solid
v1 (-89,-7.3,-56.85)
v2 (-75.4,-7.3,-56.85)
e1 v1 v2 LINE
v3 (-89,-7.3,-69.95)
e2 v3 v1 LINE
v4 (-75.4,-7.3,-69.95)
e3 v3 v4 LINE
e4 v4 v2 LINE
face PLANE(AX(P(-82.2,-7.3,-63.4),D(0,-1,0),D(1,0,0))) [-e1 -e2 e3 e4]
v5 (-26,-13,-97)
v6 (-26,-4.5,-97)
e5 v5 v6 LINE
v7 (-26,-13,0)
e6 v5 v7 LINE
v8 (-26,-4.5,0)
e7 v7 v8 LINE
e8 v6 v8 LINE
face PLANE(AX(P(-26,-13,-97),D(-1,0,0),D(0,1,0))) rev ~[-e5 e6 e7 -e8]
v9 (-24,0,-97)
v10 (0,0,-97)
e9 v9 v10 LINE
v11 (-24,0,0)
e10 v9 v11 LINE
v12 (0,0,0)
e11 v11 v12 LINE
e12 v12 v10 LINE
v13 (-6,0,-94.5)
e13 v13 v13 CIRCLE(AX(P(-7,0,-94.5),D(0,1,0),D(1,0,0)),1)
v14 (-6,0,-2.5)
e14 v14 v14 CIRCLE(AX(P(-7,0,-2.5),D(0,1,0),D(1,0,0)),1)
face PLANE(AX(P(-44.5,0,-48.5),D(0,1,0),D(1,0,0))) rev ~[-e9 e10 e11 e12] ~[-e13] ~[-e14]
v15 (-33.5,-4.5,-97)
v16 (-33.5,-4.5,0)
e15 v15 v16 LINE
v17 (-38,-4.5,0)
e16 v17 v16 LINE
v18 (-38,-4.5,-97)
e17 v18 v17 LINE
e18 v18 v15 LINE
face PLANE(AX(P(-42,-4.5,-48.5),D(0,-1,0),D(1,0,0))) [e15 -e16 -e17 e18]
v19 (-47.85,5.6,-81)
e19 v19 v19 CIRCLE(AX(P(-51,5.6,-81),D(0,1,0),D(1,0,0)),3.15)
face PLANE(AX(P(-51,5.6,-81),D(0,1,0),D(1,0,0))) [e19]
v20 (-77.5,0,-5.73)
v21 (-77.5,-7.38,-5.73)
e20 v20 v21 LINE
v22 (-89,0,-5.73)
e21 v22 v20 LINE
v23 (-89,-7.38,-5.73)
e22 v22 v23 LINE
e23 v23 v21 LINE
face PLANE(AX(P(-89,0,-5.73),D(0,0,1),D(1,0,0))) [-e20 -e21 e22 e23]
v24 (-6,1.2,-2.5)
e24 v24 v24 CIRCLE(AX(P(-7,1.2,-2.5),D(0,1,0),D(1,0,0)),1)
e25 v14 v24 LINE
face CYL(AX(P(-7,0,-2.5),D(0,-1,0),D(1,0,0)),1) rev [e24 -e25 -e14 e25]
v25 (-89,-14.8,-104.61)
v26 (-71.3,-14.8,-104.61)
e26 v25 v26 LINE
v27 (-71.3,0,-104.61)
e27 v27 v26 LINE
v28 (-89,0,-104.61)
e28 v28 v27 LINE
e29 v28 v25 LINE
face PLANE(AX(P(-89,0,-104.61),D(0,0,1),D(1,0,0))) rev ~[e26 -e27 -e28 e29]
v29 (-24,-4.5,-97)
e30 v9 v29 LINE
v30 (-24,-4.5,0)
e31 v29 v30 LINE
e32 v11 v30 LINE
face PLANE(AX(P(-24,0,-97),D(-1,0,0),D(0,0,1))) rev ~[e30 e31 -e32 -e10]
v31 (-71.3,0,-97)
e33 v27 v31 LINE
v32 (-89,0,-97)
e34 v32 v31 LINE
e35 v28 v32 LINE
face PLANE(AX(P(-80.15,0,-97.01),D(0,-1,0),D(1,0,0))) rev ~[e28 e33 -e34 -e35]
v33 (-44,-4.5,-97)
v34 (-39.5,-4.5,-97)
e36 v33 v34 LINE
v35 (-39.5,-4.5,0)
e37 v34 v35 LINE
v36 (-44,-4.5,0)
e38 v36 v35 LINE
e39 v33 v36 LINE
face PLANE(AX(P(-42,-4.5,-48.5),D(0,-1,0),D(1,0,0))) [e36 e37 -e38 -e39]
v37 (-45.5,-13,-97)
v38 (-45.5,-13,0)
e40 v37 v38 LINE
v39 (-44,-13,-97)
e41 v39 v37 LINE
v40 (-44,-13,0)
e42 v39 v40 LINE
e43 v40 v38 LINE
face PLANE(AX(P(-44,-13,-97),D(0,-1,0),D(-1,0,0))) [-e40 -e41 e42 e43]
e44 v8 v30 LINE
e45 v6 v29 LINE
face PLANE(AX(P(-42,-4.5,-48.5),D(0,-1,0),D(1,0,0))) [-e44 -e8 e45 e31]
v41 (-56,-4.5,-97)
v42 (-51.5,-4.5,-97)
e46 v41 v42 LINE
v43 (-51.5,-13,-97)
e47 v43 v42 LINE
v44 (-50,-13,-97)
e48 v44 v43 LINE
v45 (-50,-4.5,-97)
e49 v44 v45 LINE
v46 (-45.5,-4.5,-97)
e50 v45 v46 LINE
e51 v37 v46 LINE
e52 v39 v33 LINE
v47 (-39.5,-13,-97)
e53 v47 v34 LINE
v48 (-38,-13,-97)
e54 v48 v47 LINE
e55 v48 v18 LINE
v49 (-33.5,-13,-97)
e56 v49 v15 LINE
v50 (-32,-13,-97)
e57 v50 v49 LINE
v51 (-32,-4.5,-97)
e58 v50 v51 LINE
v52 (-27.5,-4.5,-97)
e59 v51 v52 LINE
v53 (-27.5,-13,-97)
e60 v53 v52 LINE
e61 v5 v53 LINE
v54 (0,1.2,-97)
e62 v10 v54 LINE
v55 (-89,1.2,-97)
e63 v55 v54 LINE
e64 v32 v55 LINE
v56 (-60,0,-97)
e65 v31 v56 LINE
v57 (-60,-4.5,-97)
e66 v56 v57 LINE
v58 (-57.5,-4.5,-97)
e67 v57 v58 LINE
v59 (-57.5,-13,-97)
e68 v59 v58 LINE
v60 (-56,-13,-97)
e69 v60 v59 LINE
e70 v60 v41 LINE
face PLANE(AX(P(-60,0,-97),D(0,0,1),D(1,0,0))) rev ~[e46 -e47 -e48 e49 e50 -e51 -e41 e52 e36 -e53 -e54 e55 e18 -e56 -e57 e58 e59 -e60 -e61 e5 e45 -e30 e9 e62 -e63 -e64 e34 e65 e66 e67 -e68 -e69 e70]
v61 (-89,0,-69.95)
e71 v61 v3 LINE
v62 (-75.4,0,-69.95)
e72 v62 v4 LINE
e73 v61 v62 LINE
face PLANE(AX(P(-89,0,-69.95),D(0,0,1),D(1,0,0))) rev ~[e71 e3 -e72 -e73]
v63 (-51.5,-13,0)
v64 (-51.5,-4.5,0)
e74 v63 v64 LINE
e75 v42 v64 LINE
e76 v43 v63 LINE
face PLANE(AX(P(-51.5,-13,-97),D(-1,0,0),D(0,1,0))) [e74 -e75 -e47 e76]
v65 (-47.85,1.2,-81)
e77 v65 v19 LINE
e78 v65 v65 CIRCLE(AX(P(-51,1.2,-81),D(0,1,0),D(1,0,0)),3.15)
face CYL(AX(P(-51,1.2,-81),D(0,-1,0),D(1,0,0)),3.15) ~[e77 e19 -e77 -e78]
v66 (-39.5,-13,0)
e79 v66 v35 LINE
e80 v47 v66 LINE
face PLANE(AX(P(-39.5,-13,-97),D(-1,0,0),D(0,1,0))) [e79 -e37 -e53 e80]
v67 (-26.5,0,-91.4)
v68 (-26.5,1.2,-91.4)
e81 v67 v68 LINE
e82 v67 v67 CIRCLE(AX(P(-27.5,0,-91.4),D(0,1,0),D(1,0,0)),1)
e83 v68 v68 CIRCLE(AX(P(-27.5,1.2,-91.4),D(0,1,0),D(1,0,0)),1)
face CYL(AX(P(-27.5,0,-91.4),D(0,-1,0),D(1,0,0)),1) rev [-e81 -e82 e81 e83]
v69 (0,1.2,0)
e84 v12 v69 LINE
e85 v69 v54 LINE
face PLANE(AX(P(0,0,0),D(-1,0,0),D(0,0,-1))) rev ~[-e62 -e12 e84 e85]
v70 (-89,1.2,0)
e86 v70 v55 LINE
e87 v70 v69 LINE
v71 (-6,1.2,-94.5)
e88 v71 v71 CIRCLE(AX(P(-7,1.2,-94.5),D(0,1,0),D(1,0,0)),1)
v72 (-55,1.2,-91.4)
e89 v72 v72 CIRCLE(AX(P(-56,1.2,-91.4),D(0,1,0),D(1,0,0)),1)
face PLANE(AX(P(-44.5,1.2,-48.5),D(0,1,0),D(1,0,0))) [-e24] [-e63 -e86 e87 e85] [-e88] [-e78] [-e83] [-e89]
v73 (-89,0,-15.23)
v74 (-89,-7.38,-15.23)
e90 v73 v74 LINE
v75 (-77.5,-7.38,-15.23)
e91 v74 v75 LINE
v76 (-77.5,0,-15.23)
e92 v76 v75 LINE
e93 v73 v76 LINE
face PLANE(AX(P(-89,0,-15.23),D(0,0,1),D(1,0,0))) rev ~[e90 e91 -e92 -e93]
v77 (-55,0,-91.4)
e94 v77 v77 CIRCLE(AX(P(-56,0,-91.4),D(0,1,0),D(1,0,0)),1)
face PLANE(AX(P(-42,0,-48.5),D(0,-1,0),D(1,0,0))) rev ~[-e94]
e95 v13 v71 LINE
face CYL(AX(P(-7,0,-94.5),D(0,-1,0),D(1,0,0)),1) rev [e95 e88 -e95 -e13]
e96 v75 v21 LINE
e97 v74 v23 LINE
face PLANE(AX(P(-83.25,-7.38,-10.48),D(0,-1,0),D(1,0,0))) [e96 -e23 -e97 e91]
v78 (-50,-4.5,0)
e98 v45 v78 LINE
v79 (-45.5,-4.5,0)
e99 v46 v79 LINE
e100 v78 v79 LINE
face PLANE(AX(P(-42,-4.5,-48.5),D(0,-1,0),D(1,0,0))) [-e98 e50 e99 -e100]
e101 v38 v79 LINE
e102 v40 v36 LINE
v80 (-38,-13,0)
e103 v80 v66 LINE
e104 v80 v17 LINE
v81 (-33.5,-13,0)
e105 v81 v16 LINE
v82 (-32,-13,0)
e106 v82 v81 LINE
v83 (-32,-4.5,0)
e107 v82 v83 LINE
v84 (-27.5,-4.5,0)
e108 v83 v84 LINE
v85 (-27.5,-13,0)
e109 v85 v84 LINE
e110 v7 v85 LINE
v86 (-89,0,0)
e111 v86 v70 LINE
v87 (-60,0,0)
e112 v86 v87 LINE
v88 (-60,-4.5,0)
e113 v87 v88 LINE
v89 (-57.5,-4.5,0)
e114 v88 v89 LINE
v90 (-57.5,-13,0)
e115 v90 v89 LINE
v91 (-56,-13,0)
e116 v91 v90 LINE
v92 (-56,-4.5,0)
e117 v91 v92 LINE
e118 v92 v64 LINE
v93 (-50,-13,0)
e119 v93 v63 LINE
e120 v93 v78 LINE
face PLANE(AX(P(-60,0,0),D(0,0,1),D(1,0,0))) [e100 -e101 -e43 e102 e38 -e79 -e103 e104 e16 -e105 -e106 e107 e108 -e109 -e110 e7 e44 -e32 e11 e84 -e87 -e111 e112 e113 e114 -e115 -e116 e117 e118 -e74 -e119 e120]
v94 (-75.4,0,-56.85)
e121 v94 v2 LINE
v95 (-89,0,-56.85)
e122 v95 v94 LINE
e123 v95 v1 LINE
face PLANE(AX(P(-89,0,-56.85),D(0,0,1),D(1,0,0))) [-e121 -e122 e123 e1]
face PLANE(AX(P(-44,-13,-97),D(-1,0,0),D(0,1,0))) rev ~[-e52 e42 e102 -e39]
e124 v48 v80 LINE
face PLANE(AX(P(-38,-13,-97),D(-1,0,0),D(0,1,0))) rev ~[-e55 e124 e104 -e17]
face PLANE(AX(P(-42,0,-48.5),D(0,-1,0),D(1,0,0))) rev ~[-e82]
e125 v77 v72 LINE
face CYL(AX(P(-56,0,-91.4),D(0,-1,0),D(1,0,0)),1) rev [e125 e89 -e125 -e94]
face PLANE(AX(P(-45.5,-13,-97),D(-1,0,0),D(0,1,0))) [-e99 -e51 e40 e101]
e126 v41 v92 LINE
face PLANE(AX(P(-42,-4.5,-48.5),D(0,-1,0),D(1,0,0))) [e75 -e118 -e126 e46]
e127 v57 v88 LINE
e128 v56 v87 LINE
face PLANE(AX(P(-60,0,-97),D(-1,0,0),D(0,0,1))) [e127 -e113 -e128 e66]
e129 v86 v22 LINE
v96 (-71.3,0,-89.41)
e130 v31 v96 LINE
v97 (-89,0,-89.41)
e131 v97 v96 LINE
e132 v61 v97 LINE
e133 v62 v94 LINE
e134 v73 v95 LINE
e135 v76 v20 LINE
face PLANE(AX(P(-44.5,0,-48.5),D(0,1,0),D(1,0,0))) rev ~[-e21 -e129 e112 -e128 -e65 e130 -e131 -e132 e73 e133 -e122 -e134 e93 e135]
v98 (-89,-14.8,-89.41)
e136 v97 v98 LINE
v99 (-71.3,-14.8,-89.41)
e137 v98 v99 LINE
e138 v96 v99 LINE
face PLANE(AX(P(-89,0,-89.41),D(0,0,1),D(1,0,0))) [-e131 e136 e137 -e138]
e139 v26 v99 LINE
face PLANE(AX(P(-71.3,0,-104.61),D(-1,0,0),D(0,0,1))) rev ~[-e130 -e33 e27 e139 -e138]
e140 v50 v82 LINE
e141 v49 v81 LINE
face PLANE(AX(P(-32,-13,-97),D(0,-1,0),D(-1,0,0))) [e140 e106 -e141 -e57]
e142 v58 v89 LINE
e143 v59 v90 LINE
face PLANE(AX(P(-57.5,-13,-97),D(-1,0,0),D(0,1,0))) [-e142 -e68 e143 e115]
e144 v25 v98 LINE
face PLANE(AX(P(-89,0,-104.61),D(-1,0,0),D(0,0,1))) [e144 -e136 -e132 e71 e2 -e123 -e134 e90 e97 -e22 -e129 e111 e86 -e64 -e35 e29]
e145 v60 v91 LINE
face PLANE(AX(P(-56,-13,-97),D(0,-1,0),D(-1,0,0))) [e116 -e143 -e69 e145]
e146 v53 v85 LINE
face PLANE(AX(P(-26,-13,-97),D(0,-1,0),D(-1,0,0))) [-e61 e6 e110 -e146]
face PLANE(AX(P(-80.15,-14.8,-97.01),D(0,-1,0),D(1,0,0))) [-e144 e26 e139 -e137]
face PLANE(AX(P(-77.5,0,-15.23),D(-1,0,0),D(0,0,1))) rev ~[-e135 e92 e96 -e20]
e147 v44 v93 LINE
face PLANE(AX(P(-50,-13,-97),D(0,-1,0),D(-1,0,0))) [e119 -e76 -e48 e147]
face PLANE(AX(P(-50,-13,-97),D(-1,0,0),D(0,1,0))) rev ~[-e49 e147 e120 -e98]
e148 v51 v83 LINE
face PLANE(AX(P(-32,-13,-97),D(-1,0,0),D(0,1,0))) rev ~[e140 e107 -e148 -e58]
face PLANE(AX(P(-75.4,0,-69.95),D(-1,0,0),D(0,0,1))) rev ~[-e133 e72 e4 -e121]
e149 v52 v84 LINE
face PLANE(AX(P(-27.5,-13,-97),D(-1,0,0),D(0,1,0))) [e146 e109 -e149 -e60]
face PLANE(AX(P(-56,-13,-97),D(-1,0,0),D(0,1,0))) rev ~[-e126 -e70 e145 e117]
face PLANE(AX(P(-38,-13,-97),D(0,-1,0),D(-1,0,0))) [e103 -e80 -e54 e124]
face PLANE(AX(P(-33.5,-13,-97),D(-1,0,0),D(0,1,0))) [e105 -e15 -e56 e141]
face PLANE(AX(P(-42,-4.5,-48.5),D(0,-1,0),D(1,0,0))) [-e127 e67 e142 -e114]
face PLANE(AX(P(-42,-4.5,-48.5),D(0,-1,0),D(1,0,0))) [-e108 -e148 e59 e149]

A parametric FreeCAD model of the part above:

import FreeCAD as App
import Part
import Sketcher
Q = App.Units.Quantity


def add_polygon(sketch, points):
    """Adds a closed chain of lines whose ends are joined by coincident constraints."""
    first, n = sketch.GeometryCount, len(points)
    for a, b in zip(points, points[1:] + points[:1]):
        sketch.addGeometry(Part.LineSegment(App.Vector(*a, 0), App.Vector(*b, 0)), False)
    for i in range(n):
        sketch.addConstraint(Sketcher.Constraint("Coincident", first + i, 2, first + (i + 1) % n, 1))

doc = App.newDocument("Part")
body = doc.addObject("PartDesign::Body", "Body")

# Sketch on XZ plane
sketch1 = body.newObject("Sketcher::SketchObject", "Sketch")
sketch1.AttachmentSupport = (doc.getObject("XZ_Plane"), [""])
sketch1.MapMode = "FlatFace"
add_polygon(sketch1, [(-89, -97), (-89, 0), (0, 0), (0, -97)])  # lines 0-3
sketch1.addGeometry(Part.Circle(App.Vector(-7, -2.5, 0), App.Vector(0, 0, 1), 1), False)  # 4
sketch1.addGeometry(Part.Circle(App.Vector(-56, -91.4, 0), App.Vector(0, 0, 1), 1), False)  # 5
sketch1.addGeometry(Part.Circle(App.Vector(-27.5, -91.4, 0), App.Vector(0, 0, 1), 1), False)  # 6
sketch1.addGeometry(Part.Circle(App.Vector(-7, -94.5, 0), App.Vector(0, 0, 1), 1), False)  # 7
sketch1.addConstraint(Sketcher.Constraint("Vertical", 0))
sketch1.addConstraint(Sketcher.Constraint("Horizontal", 1))
sketch1.addConstraint(Sketcher.Constraint("Vertical", 2))
sketch1.addConstraint(Sketcher.Constraint("Horizontal", 3))
sketch1.addConstraint(Sketcher.Constraint("Coincident", 1, 2, -1, 1))
sketch1.addConstraint(Sketcher.Constraint("Equal", 4, 5))
sketch1.addConstraint(Sketcher.Constraint("Equal", 5, 6))
sketch1.addConstraint(Sketcher.Constraint("Equal", 6, 7))
sketch1.addConstraint(Sketcher.Constraint("Horizontal", 5, 3, 6, 3))
sketch1.addConstraint(Sketcher.Constraint("Vertical", 4, 3, 7, 3))
sketch1.addConstraint(Sketcher.Constraint("Diameter", 4, Q("2 mm")))
sketch1.addConstraint(Sketcher.Constraint("DistanceX", 1, 1, 1, 2, Q("89 mm")))
sketch1.addConstraint(Sketcher.Constraint("DistanceY", 0, 1, 0, 2, Q("97 mm")))
sketch1.addConstraint(Sketcher.Constraint("DistanceX", 4, 3, -1, 1, Q("7 mm")))
sketch1.addConstraint(Sketcher.Constraint("DistanceX", 5, 3, -1, 1, Q("56 mm")))
sketch1.addConstraint(Sketcher.Constraint("DistanceY", 7, 3, 4, 3, Q("92 mm")))
sketch1.addConstraint(Sketcher.Constraint("DistanceY", 4, 3, -1, 1, Q("2.5 mm")))
sketch1.addConstraint(Sketcher.Constraint("DistanceY", 5, 3, -1, 1, Q("91.4 mm")))
sketch1.addConstraint(Sketcher.Constraint("DistanceX", 6, 3, -1, 1, Q("27.5 mm")))
pad1 = body.newObject("PartDesign::Pad", "Pad")
pad1.Profile = sketch1
pad1.Length = 1.2
pad1.Reversed = True

# Sketch on XZ plane
sketch2 = body.newObject("Sketcher::SketchObject", "Sketch001")
sketch2.AttachmentSupport = (doc.getObject("XZ_Plane"), [""])
sketch2.MapMode = "FlatFace"
sketch2.AttachmentOffset = App.Placement(App.Vector(0, 0, -1.2), App.Rotation())
sketch2.addGeometry(Part.Circle(App.Vector(-51, -81, 0), App.Vector(0, 0, 1), 3.1), False)
sketch2.addConstraint(Sketcher.Constraint("Diameter", 0, Q("6.3 mm")))
sketch2.addConstraint(Sketcher.Constraint("DistanceX", 0, 3, -1, 1, Q("51 mm")))
sketch2.addConstraint(Sketcher.Constraint("DistanceY", 0, 3, -1, 1, Q("81 mm")))
pad2 = body.newObject("PartDesign::Pad", "Pad001")
pad2.Profile = sketch2
pad2.Length = 4.4
pad2.Reversed = True

# Sketch on XZ plane
sketch3 = body.newObject("Sketcher::SketchObject", "Sketch002")
sketch3.AttachmentSupport = (doc.getObject("XZ_Plane"), [""])
sketch3.MapMode = "FlatFace"
add_polygon(sketch3, [(-60, 0), (-60, -97), (-24, -97), (-24, 0)])  # lines 0-3
sketch3.addConstraint(Sketcher.Constraint("Vertical", 0))
sketch3.addConstraint(Sketcher.Constraint("Horizontal", 1))
sketch3.addConstraint(Sketcher.Constraint("Vertical", 2))
sketch3.addConstraint(Sketcher.Constraint("Horizontal", 3))
sketch3.addConstraint(Sketcher.Constraint("PointOnObject", 2, 2, -1))
sketch3.addConstraint(Sketcher.Constraint("DistanceX", 1, 1, 1, 2, Q("36 mm")))
sketch3.addConstraint(Sketcher.Constraint("DistanceY", 0, 2, 0, 1, Q("97 mm")))
sketch3.addConstraint(Sketcher.Constraint("DistanceX", 0, 2, -1, 1, Q("60 mm")))
pad3 = body.newObject("PartDesign::Pad", "Pad002")
pad3.Profile = sketch3
pad3.Length = 4.5

# Sketch on XY plane
sketch4 = body.newObject("Sketcher::SketchObject", "Sketch003")
sketch4.AttachmentSupport = (doc.getObject("XY_Plane"), [""])
sketch4.MapMode = "FlatFace"
sketch4.AttachmentOffset = App.Placement(App.Vector(0, 0, -97), App.Rotation())
add_polygon(sketch4, [(-26, -4.5), (-26, -13), (-27.5, -13), (-27.5, -4.5)])  # lines 0-3
add_polygon(sketch4, [(-32, -4.5), (-32, -13), (-33.5, -13), (-33.5, -4.5)])  # lines 4-7
add_polygon(sketch4, [(-38, -4.5), (-38, -13), (-39.5, -13), (-39.5, -4.5)])  # lines 8-11
add_polygon(sketch4, [(-44, -4.5), (-44, -13), (-45.5, -13), (-45.5, -4.5)])  # lines 12-15
add_polygon(sketch4, [(-50, -4.5), (-50, -13), (-51.5, -13), (-51.5, -4.5)])  # lines 16-19
add_polygon(sketch4, [(-56, -4.5), (-56, -13), (-57.5, -13), (-57.5, -4.5)])  # lines 20-23
sketch4.addConstraint(Sketcher.Constraint("Vertical", 0))
sketch4.addConstraint(Sketcher.Constraint("Horizontal", 1))
sketch4.addConstraint(Sketcher.Constraint("Vertical", 2))
sketch4.addConstraint(Sketcher.Constraint("Horizontal", 3))
sketch4.addConstraint(Sketcher.Constraint("Vertical", 4))
sketch4.addConstraint(Sketcher.Constraint("Horizontal", 5))
sketch4.addConstraint(Sketcher.Constraint("Vertical", 6))
sketch4.addConstraint(Sketcher.Constraint("Horizontal", 7))
sketch4.addConstraint(Sketcher.Constraint("Vertical", 8))
sketch4.addConstraint(Sketcher.Constraint("Horizontal", 9))
sketch4.addConstraint(Sketcher.Constraint("Vertical", 10))
sketch4.addConstraint(Sketcher.Constraint("Horizontal", 11))
sketch4.addConstraint(Sketcher.Constraint("Vertical", 12))
sketch4.addConstraint(Sketcher.Constraint("Horizontal", 13))
sketch4.addConstraint(Sketcher.Constraint("Vertical", 14))
sketch4.addConstraint(Sketcher.Constraint("Horizontal", 15))
sketch4.addConstraint(Sketcher.Constraint("Vertical", 16))
sketch4.addConstraint(Sketcher.Constraint("Horizontal", 17))
sketch4.addConstraint(Sketcher.Constraint("Vertical", 18))
sketch4.addConstraint(Sketcher.Constraint("Horizontal", 19))
sketch4.addConstraint(Sketcher.Constraint("Vertical", 20))
sketch4.addConstraint(Sketcher.Constraint("Horizontal", 21))
sketch4.addConstraint(Sketcher.Constraint("Vertical", 22))
sketch4.addConstraint(Sketcher.Constraint("Horizontal", 23))
sketch4.addConstraint(Sketcher.Constraint("Horizontal", 1, 2, 4, 2))
sketch4.addConstraint(Sketcher.Constraint("Horizontal", 3, 2, 6, 2))
sketch4.addConstraint(Sketcher.Constraint("Horizontal", 5, 2, 8, 2))
sketch4.addConstraint(Sketcher.Constraint("Horizontal", 7, 2, 10, 2))
sketch4.addConstraint(Sketcher.Constraint("Horizontal", 9, 2, 12, 2))
sketch4.addConstraint(Sketcher.Constraint("Horizontal", 11, 2, 14, 2))
sketch4.addConstraint(Sketcher.Constraint("Horizontal", 13, 2, 16, 2))
sketch4.addConstraint(Sketcher.Constraint("Horizontal", 15, 2, 18, 2))
sketch4.addConstraint(Sketcher.Constraint("Horizontal", 17, 2, 20, 2))
sketch4.addConstraint(Sketcher.Constraint("Horizontal", 19, 2, 22, 2))
sketch4.addConstraint(Sketcher.Constraint("Equal", 3, 5))
sketch4.addConstraint(Sketcher.Constraint("Equal", 7, 9))
sketch4.addConstraint(Sketcher.Constraint("Equal", 11, 13))
sketch4.addConstraint(Sketcher.Constraint("Equal", 15, 17))
sketch4.addConstraint(Sketcher.Constraint("Equal", 19, 21))
sketch4.addConstraint(Sketcher.Constraint("DistanceX", 1, 2, 1, 1, Q("1.5 mm")))
sketch4.addConstraint(Sketcher.Constraint("DistanceY", 0, 2, 0, 1, Q("8.5 mm")))
sketch4.addConstraint(Sketcher.Constraint("DistanceX", 0, 2, -1, 1, Q("26 mm")))
sketch4.addConstraint(Sketcher.Constraint("DistanceY", 0, 2, -1, 1, Q("13 mm")))
sketch4.addConstraint(Sketcher.Constraint("DistanceX", 4, 2, -1, 1, Q("32 mm")))
sketch4.addConstraint(Sketcher.Constraint("DistanceX", 8, 2, -1, 1, Q("38 mm")))
sketch4.addConstraint(Sketcher.Constraint("DistanceX", 12, 2, -1, 1, Q("44 mm")))
sketch4.addConstraint(Sketcher.Constraint("DistanceX", 16, 2, -1, 1, Q("50 mm")))
sketch4.addConstraint(Sketcher.Constraint("DistanceX", 20, 2, -1, 1, Q("56 mm")))
pad4 = body.newObject("PartDesign::Pad", "Pad003")
pad4.Profile = sketch4
pad4.Length = 97

# Sketch on XZ plane
sketch5 = body.newObject("Sketcher::SketchObject", "Sketch004")
sketch5.AttachmentSupport = (doc.getObject("XZ_Plane"), [""])
sketch5.MapMode = "FlatFace"
add_polygon(sketch5, [(-89, -57), (-89, -70), (-75, -70), (-75, -57)])  # lines 0-3
sketch5.addConstraint(Sketcher.Constraint("Vertical", 0))
sketch5.addConstraint(Sketcher.Constraint("Horizontal", 1))
sketch5.addConstraint(Sketcher.Constraint("Vertical", 2))
sketch5.addConstraint(Sketcher.Constraint("Horizontal", 3))
sketch5.addConstraint(Sketcher.Constraint("DistanceX", 1, 1, 1, 2, Q("13.6 mm")))
sketch5.addConstraint(Sketcher.Constraint("DistanceY", 0, 2, 0, 1, Q("13.1 mm")))
sketch5.addConstraint(Sketcher.Constraint("DistanceX", 0, 2, -1, 1, Q("89 mm")))
sketch5.addConstraint(Sketcher.Constraint("DistanceY", 0, 2, -1, 1, Q("69.95 mm")))
pad5 = body.newObject("PartDesign::Pad", "Pad004")
pad5.Profile = sketch5
pad5.Length = 7.3

# Sketch on XZ plane
sketch6 = body.newObject("Sketcher::SketchObject", "Sketch005")
sketch6.AttachmentSupport = (doc.getObject("XZ_Plane"), [""])
sketch6.MapMode = "FlatFace"
add_polygon(sketch6, [(-89, -89), (-89, -105), (-71, -105), (-71, -89)])  # lines 0-3
sketch6.addConstraint(Sketcher.Constraint("Vertical", 0))
sketch6.addConstraint(Sketcher.Constraint("Horizontal", 1))
sketch6.addConstraint(Sketcher.Constraint("Vertical", 2))
sketch6.addConstraint(Sketcher.Constraint("Horizontal", 3))
sketch6.addConstraint(Sketcher.Constraint("DistanceX", 1, 1, 1, 2, Q("17.7 mm")))
sketch6.addConstraint(Sketcher.Constraint("DistanceY", 0, 2, 0, 1, Q("15.2 mm")))
sketch6.addConstraint(Sketcher.Constraint("DistanceX", 0, 2, -1, 1, Q("89 mm")))
sketch6.addConstraint(Sketcher.Constraint("DistanceY", 0, 2, -1, 1, Q("104.61 mm")))
pad6 = body.newObject("PartDesign::Pad", "Pad005")
pad6.Profile = sketch6
pad6.Length = 14.8

# Sketch on XZ plane
sketch7 = body.newObject("Sketcher::SketchObject", "Sketch006")
sketch7.AttachmentSupport = (doc.getObject("XZ_Plane"), [""])
sketch7.MapMode = "FlatFace"
add_polygon(sketch7, [(-89, -6), (-89, -15), (-78, -15), (-78, -6)])  # lines 0-3
sketch7.addConstraint(Sketcher.Constraint("Vertical", 0))
sketch7.addConstraint(Sketcher.Constraint("Horizontal", 1))
sketch7.addConstraint(Sketcher.Constraint("Vertical", 2))
sketch7.addConstraint(Sketcher.Constraint("Horizontal", 3))
sketch7.addConstraint(Sketcher.Constraint("DistanceX", 1, 1, 1, 2, Q("11.5 mm")))
sketch7.addConstraint(Sketcher.Constraint("DistanceY", 0, 2, 0, 1, Q("9.5 mm")))
sketch7.addConstraint(Sketcher.Constraint("DistanceX", 0, 2, -1, 1, Q("89 mm")))
sketch7.addConstraint(Sketcher.Constraint("DistanceY", 0, 2, -1, 1, Q("15.23 mm")))
pad7 = body.newObject("PartDesign::Pad", "Pad006")
pad7.Profile = sketch7
pad7.Length = 7.38

doc.recompute()
